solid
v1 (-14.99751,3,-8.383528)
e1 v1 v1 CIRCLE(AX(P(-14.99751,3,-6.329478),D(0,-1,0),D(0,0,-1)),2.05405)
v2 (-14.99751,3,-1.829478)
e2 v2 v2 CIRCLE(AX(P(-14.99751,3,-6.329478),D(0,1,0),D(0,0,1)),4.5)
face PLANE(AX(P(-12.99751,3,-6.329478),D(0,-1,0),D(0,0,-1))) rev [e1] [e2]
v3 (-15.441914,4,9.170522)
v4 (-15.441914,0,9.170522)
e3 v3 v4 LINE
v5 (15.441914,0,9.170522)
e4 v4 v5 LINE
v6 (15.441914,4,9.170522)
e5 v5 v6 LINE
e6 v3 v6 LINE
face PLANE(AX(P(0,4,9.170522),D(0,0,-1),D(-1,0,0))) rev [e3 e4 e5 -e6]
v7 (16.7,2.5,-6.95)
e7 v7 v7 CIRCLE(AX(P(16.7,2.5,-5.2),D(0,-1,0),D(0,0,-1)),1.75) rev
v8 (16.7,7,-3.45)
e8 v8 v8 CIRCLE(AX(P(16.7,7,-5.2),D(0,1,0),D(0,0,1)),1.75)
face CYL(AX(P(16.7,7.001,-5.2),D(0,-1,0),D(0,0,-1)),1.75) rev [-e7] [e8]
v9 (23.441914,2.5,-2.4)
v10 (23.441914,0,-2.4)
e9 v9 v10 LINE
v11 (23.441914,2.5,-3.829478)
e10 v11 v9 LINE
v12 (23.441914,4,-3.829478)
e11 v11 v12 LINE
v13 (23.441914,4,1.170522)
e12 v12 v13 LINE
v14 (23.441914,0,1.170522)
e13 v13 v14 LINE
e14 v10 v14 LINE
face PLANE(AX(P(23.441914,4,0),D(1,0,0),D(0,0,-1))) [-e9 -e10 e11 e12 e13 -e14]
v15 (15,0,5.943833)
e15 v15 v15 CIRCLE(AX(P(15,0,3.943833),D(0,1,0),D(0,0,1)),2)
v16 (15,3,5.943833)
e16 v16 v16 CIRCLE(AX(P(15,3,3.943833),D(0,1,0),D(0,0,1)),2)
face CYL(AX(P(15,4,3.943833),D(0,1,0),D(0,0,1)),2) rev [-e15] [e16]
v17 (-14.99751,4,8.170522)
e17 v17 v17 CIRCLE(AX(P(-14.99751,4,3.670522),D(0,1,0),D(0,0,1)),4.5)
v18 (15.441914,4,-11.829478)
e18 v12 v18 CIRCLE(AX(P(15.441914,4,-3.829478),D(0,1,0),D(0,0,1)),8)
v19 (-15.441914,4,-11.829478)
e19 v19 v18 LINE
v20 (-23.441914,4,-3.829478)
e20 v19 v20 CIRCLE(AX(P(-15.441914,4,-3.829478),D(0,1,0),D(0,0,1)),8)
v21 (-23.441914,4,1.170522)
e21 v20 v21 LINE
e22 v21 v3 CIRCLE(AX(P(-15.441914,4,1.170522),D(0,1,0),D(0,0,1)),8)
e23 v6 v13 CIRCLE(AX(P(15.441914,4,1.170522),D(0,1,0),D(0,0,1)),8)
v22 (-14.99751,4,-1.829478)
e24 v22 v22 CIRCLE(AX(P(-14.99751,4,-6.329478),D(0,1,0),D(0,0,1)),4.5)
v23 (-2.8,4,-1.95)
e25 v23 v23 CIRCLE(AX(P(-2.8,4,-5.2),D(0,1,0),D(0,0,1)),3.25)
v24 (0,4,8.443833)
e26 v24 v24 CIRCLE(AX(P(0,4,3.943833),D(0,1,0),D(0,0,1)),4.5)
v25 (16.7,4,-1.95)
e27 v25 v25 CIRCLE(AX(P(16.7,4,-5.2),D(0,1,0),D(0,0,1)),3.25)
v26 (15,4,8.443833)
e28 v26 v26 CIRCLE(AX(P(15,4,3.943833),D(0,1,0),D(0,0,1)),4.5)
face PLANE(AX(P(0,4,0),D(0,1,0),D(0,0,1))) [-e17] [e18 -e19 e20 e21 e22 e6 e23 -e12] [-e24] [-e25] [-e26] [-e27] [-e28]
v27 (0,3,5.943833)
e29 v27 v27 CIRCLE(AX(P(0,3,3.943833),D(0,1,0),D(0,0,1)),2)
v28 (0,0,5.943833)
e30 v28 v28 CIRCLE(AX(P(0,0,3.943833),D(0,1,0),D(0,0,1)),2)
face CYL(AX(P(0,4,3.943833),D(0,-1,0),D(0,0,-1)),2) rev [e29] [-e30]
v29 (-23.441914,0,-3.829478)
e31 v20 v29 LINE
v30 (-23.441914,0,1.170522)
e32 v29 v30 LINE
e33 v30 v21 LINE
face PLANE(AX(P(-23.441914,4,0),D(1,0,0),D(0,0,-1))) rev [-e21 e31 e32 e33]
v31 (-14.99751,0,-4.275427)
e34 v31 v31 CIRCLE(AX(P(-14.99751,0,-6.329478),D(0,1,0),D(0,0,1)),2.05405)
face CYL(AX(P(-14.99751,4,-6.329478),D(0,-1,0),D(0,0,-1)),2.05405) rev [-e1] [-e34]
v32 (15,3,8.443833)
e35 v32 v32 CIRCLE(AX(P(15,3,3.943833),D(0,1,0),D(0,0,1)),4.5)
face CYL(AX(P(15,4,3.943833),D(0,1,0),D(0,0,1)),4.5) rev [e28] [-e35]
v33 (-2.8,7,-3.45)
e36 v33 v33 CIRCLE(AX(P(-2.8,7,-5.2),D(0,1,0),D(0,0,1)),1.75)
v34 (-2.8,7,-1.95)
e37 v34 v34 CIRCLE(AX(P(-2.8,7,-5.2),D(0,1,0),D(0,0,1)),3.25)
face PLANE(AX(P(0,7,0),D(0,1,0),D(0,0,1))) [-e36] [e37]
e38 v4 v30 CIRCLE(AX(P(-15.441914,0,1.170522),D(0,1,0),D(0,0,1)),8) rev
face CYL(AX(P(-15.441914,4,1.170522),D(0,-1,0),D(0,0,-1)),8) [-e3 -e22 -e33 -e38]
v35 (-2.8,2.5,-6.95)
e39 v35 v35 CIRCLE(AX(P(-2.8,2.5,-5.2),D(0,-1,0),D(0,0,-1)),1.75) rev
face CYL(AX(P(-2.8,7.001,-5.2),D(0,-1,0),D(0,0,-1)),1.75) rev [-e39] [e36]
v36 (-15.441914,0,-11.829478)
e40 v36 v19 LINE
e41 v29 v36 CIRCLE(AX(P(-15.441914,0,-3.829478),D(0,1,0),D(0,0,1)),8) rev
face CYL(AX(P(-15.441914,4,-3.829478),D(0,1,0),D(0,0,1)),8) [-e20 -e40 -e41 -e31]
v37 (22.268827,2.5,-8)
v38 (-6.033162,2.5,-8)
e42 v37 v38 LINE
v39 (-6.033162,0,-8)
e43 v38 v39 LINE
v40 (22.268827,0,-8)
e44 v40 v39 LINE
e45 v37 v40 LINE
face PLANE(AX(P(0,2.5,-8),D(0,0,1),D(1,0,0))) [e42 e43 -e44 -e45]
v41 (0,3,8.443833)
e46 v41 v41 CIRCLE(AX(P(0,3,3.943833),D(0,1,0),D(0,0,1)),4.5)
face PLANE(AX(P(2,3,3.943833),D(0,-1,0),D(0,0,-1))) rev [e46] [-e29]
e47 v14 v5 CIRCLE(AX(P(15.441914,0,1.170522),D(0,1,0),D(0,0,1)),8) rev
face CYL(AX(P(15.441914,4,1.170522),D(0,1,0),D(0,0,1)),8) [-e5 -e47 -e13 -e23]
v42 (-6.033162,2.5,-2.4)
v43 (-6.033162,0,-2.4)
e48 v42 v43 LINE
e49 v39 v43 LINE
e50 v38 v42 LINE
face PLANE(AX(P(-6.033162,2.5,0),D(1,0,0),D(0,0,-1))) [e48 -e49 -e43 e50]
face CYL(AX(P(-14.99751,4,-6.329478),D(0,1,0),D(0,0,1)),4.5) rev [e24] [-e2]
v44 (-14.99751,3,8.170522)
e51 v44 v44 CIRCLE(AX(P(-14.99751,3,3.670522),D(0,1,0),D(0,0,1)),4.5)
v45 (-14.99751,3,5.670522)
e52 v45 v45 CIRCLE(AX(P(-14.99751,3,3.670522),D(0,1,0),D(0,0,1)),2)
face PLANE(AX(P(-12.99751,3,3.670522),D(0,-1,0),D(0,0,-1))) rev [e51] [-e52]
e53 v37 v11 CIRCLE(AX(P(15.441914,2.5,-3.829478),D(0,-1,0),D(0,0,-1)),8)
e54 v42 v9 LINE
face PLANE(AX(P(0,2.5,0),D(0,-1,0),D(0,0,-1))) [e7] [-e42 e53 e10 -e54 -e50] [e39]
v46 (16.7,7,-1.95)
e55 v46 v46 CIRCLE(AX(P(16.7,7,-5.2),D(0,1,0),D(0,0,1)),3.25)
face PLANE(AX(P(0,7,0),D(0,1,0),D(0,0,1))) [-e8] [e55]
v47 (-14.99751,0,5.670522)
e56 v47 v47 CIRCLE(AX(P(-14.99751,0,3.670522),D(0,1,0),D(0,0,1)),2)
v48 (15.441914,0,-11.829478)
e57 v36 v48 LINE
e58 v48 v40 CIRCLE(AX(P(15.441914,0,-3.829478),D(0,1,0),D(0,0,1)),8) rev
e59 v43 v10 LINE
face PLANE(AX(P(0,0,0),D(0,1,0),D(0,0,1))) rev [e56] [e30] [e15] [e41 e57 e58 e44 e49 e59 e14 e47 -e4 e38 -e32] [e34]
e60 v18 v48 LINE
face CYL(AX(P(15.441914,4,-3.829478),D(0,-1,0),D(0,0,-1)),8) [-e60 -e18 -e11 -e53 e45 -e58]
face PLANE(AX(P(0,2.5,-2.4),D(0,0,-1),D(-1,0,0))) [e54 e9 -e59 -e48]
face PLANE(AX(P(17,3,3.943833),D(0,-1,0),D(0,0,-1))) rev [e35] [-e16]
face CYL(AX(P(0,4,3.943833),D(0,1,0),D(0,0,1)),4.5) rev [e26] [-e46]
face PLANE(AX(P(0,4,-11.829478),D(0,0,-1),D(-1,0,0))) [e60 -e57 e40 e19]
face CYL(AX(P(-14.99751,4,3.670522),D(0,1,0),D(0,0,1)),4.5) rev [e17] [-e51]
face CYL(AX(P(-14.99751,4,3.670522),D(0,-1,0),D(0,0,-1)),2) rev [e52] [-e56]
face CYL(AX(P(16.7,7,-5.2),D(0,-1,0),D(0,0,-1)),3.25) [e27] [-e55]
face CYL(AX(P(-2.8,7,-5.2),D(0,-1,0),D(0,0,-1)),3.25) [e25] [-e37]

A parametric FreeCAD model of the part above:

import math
import FreeCAD as App
import Part
import Sketcher

V = App.Vector
Q = App.Units.Quantity


def edges_at(feature, points):
    """Names of the edges that pass closest to the given points."""
    edges = feature.Shape.Edges
    near = lambda p: min(range(len(edges)), key=lambda i: edges[i].distToShape(Part.Vertex(*p))[0])
    return sorted({f"Edge{near(p) + 1}" for p in points})

doc = App.newDocument("Part")
body = doc.addObject("PartDesign::Body", "Body")

# Sketch on XZ plane
sketch1 = body.newObject("Sketcher::SketchObject", "Sketch")
sketch1.AttachmentSupport = (doc.getObject("XZ_Plane"), [""])
sketch1.MapMode = "FlatFace"
sketch1.addGeometry(Part.LineSegment(V(-23.4, -11.8, 0), V(-23.4, 9.2, 0)), False)
sketch1.addGeometry(Part.LineSegment(V(-23.4, 9.2, 0), V(23.4, 9.2, 0)), False)
sketch1.addGeometry(Part.LineSegment(V(23.4, 9.2, 0), V(23.4, -11.8, 0)), False)
sketch1.addGeometry(Part.LineSegment(V(23.4, -11.8, 0), V(-23.4, -11.8, 0)), False)
sketch1.addGeometry(Part.Circle(V(-15, 3.7, 0), V(0, 0, 1), 2), False)
sketch1.addGeometry(Part.Circle(V(0, 3.9, 0), V(0, 0, 1), 2), False)
sketch1.addGeometry(Part.Circle(V(-15, -6.3, 0), V(0, 0, 1), 2.1), False)
sketch1.addGeometry(Part.Circle(V(-2.8, -5.2, 0), V(0, 0, 1), 3.2), False)
sketch1.addGeometry(Part.Circle(V(16.7, -5.2, 0), V(0, 0, 1), 3.2), False)
sketch1.addConstraint(Sketcher.Constraint("Coincident", 0, 2, 1, 1))
sketch1.addConstraint(Sketcher.Constraint("Coincident", 1, 2, 2, 1))
sketch1.addConstraint(Sketcher.Constraint("Coincident", 2, 2, 3, 1))
sketch1.addConstraint(Sketcher.Constraint("Coincident", 3, 2, 0, 1))
sketch1.addConstraint(Sketcher.Constraint("Vertical", 0))
sketch1.addConstraint(Sketcher.Constraint("Horizontal", 1))
sketch1.addConstraint(Sketcher.Constraint("Vertical", 2))
sketch1.addConstraint(Sketcher.Constraint("Horizontal", 3))
sketch1.addConstraint(Sketcher.Constraint("Equal", 4, 5))
sketch1.addConstraint(Sketcher.Constraint("Equal", 7, 8))
sketch1.addConstraint(Sketcher.Constraint("PointOnObject", 5, 3, -2))
sketch1.addConstraint(Sketcher.Constraint("Horizontal", 7, 3, 8, 3))
sketch1.addConstraint(Sketcher.Constraint("Vertical", 4, 3, 6, 3))
sketch1.addConstraint(Sketcher.Constraint("Diameter", 4, Q("4 mm")))
sketch1.addConstraint(Sketcher.Constraint("Diameter", 7, Q("6.5 mm")))
sketch1.addConstraint(Sketcher.Constraint("DistanceY", 0, 1, 0, 2, Q("21 mm")))
sketch1.addConstraint(Sketcher.Constraint("DistanceY", 6, 3, 4, 3, Q("10 mm")))
sketch1.addConstraint(Sketcher.Constraint("Diameter", 6, Q("4.108101 mm")))
sketch1.addConstraint(Sketcher.Constraint("DistanceX", 7, 3, -1, 1, Q("2.8 mm")))
sketch1.addConstraint(Sketcher.Constraint("DistanceY", 7, 3, -1, 1, Q("5.2 mm")))
sketch1.addConstraint(Sketcher.Constraint("DistanceX", -1, 1, 8, 3, Q("16.7 mm")))
sketch1.addConstraint(Sketcher.Constraint("DistanceY", 4, 3, 0, 2, Q("5.5 mm")))
sketch1.addConstraint(Sketcher.Constraint("DistanceX", 1, 1, 1, 2, Q("46.883828 mm")))
sketch1.addConstraint(Sketcher.Constraint("DistanceX", 4, 3, -1, 1, Q("14.99751 mm")))
sketch1.addConstraint(Sketcher.Constraint("DistanceY", 4, 3, 5, 3, Q("0.27331 mm")))
sketch1.addConstraint(Sketcher.Constraint("DistanceY", -1, 1, 4, 3, Q("3.670522 mm")))
sketch1.addConstraint(Sketcher.Constraint("DistanceX", 0, 2, -1, 1, Q("23.441914 mm")))
pad1 = body.newObject("PartDesign::Pad", "Pad")
pad1.Profile = sketch1
pad1.Length = 4
pad1.Reversed = True

# Sketch on XZ plane
sketch2 = body.newObject("Sketcher::SketchObject", "Sketch001")
sketch2.AttachmentSupport = (doc.getObject("XZ_Plane"), [""])
sketch2.MapMode = "FlatFace"
sketch2.addGeometry(Part.Circle(V(-2.8, -5.2, 0), V(0, 0, 1), 3.2), False)
sketch2.addGeometry(Part.Circle(V(16.7, -5.2, 0), V(0, 0, 1), 3.2), False)
sketch2.addConstraint(Sketcher.Constraint("Equal", 0, 1))
sketch2.addConstraint(Sketcher.Constraint("Horizontal", 0, 3, 1, 3))
sketch2.addConstraint(Sketcher.Constraint("Diameter", 0, Q("6.5 mm")))
sketch2.addConstraint(Sketcher.Constraint("DistanceX", 0, 3, -1, 1, Q("2.8 mm")))
sketch2.addConstraint(Sketcher.Constraint("DistanceY", 0, 3, -1, 1, Q("5.2 mm")))
sketch2.addConstraint(Sketcher.Constraint("DistanceX", -1, 1, 1, 3, Q("16.7 mm")))
pad2 = body.newObject("PartDesign::Pad", "Pad001")
pad2.Profile = sketch2
pad2.Length = 7
pad2.Reversed = True

# Sketch on XZ plane
sketch3 = body.newObject("Sketcher::SketchObject", "Sketch002")
sketch3.AttachmentSupport = (doc.getObject("XZ_Plane"), [""])
sketch3.MapMode = "FlatFace"
sketch3.addGeometry(Part.Circle(V(-2.8, -5.2, 0), V(0, 0, 1), 1.8), False)
sketch3.addConstraint(Sketcher.Constraint("Diameter", 0, Q("3.5 mm")))
sketch3.addConstraint(Sketcher.Constraint("DistanceX", 0, 3, -1, 1, Q("2.8 mm")))
sketch3.addConstraint(Sketcher.Constraint("DistanceY", 0, 3, -1, 1, Q("5.2 mm")))
pocket1 = body.newObject("PartDesign::Pocket", "Pocket")
pocket1.Profile = sketch3
pocket1.Type = "UpToFirst"

# Sketch on XZ plane
sketch4 = body.newObject("Sketcher::SketchObject", "Sketch003")
sketch4.AttachmentSupport = (doc.getObject("XZ_Plane"), [""])
sketch4.MapMode = "FlatFace"
sketch4.addGeometry(Part.Circle(V(16.7, -5.2, 0), V(0, 0, 1), 1.8), False)
sketch4.addConstraint(Sketcher.Constraint("Diameter", 0, Q("3.5 mm")))
sketch4.addConstraint(Sketcher.Constraint("DistanceX", -1, 1, 0, 3, Q("16.7 mm")))
sketch4.addConstraint(Sketcher.Constraint("DistanceY", 0, 3, -1, 1, Q("5.2 mm")))
pocket2 = body.newObject("PartDesign::Pocket", "Pocket001")
pocket2.Profile = sketch4
pocket2.Type = "UpToFirst"

# Sketch on XZ plane
sketch5 = body.newObject("Sketcher::SketchObject", "Sketch004")
sketch5.AttachmentSupport = (doc.getObject("XZ_Plane"), [""])
sketch5.MapMode = "FlatFace"
sketch5.AttachmentOffset = App.Placement(V(0, 0, -4), App.Rotation())
sketch5.addGeometry(Part.Circle(V(0, 3.9, 0), V(0, 0, 1), 2), False)
sketch5.addGeometry(Part.Circle(V(15, 3.9, 0), V(0, 0, 1), 2), False)
sketch5.addGeometry(Part.Circle(V(-15, 3.7, 0), V(0, 0, 1), 2), False)
sketch5.addGeometry(Part.Circle(V(-15, -6.3, 0), V(0, 0, 1), 2), False)
sketch5.addConstraint(Sketcher.Constraint("Equal", 0, 1))
sketch5.addConstraint(Sketcher.Constraint("Equal", 1, 2))
sketch5.addConstraint(Sketcher.Constraint("Equal", 2, 3))
sketch5.addConstraint(Sketcher.Constraint("PointOnObject", 0, 3, -2))
sketch5.addConstraint(Sketcher.Constraint("Horizontal", 0, 3, 1, 3))
sketch5.addConstraint(Sketcher.Constraint("Vertical", 2, 3, 3, 3))
sketch5.addConstraint(Sketcher.Constraint("Diameter", 0, Q("4 mm")))
sketch5.addConstraint(Sketcher.Constraint("DistanceX", -1, 1, 1, 3, Q("15 mm")))
sketch5.addConstraint(Sketcher.Constraint("DistanceY", 3, 3, 2, 3, Q("10 mm")))
sketch5.addConstraint(Sketcher.Constraint("DistanceX", 2, 3, -1, 1, Q("14.99751 mm")))
sketch5.addConstraint(Sketcher.Constraint("DistanceY", 2, 3, 0, 3, Q("0.27331 mm")))
sketch5.addConstraint(Sketcher.Constraint("DistanceY", -1, 1, 0, 3, Q("3.943833 mm")))
doc.recompute()
hole = body.newObject("PartDesign::Hole", "Hole")
hole.Profile = sketch5
hole.ThreadType = "None"
hole.Diameter = 4
hole.DepthType = "Dimension"
hole.Depth = 4
hole.DrillPoint = "Flat"
hole.HoleCutType = "Counterbore"
hole.HoleCutDiameter = 9
hole.HoleCutDepth = 1
hole.Reversed = True
doc.recompute()

fillet = body.newObject("PartDesign::Fillet", "Fillet")
fillet.Base = (hole, edges_at(hole, [
    (23.442, 2, -11.829),
    (23.442, 2, 9.171),
    (-23.442, 2, 9.171),
    (-23.442, 2, -11.829),
]))
fillet.Radius = 8

# Sketch on XZ plane
sketch6 = body.newObject("Sketcher::SketchObject", "Sketch005")
sketch6.AttachmentSupport = (doc.getObject("XZ_Plane"), [""])
sketch6.MapMode = "FlatFace"
sketch6.addGeometry(Part.ArcOfCircle(Part.Circle(V(15.4, -3.8, 0), V(0, 0, 1), 8), math.radians(-31), math.radians(0)), False)
sketch6.addGeometry(Part.LineSegment(V(23.4, -3.8, 0), V(23.4, -2.4, 0)), False)
sketch6.addGeometry(Part.LineSegment(V(23.4, -2.4, 0), V(-6, -2.4, 0)), False)
sketch6.addGeometry(Part.LineSegment(V(-6, -2.4, 0), V(-6, -8, 0)), False)
sketch6.addGeometry(Part.LineSegment(V(-6, -8, 0), V(22.3, -8, 0)), False)
sketch6.addGeometry(Part.Circle(V(-2.8, -5.2, 0), V(0, 0, 1), 1.8), False)
sketch6.addGeometry(Part.Circle(V(16.7, -5.2, 0), V(0, 0, 1), 1.8), False)
sketch6.addConstraint(Sketcher.Constraint("Tangent", 0, 2, 1, 1))
sketch6.addConstraint(Sketcher.Constraint("Coincident", 1, 2, 2, 1))
sketch6.addConstraint(Sketcher.Constraint("Coincident", 2, 2, 3, 1))
sketch6.addConstraint(Sketcher.Constraint("Coincident", 3, 2, 4, 1))
sketch6.addConstraint(Sketcher.Constraint("Coincident", 4, 2, 0, 1))
sketch6.addConstraint(Sketcher.Constraint("Vertical", 1))
sketch6.addConstraint(Sketcher.Constraint("Horizontal", 2))
sketch6.addConstraint(Sketcher.Constraint("Vertical", 3))
sketch6.addConstraint(Sketcher.Constraint("Horizontal", 4))
sketch6.addConstraint(Sketcher.Constraint("Equal", 5, 6))
sketch6.addConstraint(Sketcher.Constraint("Horizontal", 5, 3, 6, 3))
sketch6.addConstraint(Sketcher.Constraint("Radius", 0, Q("8 mm")))
sketch6.addConstraint(Sketcher.Constraint("Diameter", 5, Q("3.5 mm")))
sketch6.addConstraint(Sketcher.Constraint("DistanceY", 3, 2, 3, 1, Q("5.6 mm")))
sketch6.addConstraint(Sketcher.Constraint("DistanceY", 3, 2, -1, 1, Q("8 mm")))
sketch6.addConstraint(Sketcher.Constraint("DistanceX", 5, 3, -1, 1, Q("2.8 mm")))
sketch6.addConstraint(Sketcher.Constraint("DistanceY", 5, 3, -1, 1, Q("5.2 mm")))
sketch6.addConstraint(Sketcher.Constraint("DistanceX", -1, 1, 6, 3, Q("16.7 mm")))
sketch6.addConstraint(Sketcher.Constraint("DistanceX", 4, 1, 4, 2, Q("28.301989 mm")))
sketch6.addConstraint(Sketcher.Constraint("DistanceX", 2, 2, 2, 1, Q("29.475076 mm")))
sketch6.addConstraint(Sketcher.Constraint("DistanceX", 2, 2, -1, 1, Q("6.033162 mm")))
pocket3 = body.newObject("PartDesign::Pocket", "Pocket002")
pocket3.Profile = sketch6
pocket3.Length = 2.5

doc.recompute()
